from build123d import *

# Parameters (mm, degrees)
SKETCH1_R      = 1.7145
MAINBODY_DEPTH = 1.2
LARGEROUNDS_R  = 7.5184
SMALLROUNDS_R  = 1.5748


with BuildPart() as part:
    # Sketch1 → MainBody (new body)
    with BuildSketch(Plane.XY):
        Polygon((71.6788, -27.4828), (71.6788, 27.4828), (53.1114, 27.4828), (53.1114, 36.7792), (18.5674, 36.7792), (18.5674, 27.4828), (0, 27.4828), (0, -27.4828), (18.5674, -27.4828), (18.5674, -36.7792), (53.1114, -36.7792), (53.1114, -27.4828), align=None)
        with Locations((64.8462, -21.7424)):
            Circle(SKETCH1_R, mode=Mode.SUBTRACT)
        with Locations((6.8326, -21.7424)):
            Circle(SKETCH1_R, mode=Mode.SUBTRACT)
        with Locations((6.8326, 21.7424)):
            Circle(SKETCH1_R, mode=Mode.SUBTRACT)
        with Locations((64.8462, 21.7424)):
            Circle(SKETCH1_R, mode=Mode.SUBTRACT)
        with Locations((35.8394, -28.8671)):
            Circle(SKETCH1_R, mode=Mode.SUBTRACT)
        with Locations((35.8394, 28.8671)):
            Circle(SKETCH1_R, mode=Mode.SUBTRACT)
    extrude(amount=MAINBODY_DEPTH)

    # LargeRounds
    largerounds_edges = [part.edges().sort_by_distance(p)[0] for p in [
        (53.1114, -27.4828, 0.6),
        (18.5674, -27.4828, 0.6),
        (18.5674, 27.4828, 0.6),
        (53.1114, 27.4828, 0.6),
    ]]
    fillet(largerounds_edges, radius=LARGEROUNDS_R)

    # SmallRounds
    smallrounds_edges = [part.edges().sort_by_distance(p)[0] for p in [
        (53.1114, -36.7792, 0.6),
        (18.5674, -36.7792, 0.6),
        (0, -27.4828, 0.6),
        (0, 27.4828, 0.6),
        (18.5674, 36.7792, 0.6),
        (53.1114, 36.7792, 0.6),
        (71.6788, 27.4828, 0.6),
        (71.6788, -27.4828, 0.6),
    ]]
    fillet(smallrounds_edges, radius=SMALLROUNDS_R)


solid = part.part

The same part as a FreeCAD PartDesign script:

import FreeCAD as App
import Part
import Sketcher
Q = App.Units.Quantity


def edges_at(feature, points):
    """Names of the edges that pass closest to the given points."""
    edges = feature.Shape.Edges
    near = lambda p: min(range(len(edges)), key=lambda i: edges[i].distToShape(Part.Vertex(*p))[0])
    return sorted({f"Edge{near(p) + 1}" for p in points})


def add_polygon(sketch, points):
    """Adds a closed chain of lines whose ends are joined by coincident constraints."""
    first, n = sketch.GeometryCount, len(points)
    for a, b in zip(points, points[1:] + points[:1]):
        sketch.addGeometry(Part.LineSegment(App.Vector(*a, 0), App.Vector(*b, 0)), False)
    for i in range(n):
        sketch.addConstraint(Sketcher.Constraint("Coincident", first + i, 2, first + (i + 1) % n, 1))

doc = App.newDocument("Part")
params = doc.addObject("Spreadsheet::Sheet", "Params")
for row, (alias, value) in enumerate([
    ("sketch1_diameter", "0.135 in"),
    ("sketch1_width", "1.36 in"),
    ("sketch1_width2", "0.731 in"),
    ("sketch1_height", "2.164 in"),
    ("sketch1_height2", "0.366 in"),
    ("pad1_length", "1.2 mm"),
    ("fillet_radius", "0.296 in"),
    ("fillet2_radius", "0.062 in"),
], start=1):
    params.set(f"A{row}", alias)
    params.set(f"B{row}", "=" + value)
    params.setAlias(f"B{row}", alias)

body = doc.addObject("PartDesign::Body", "Body")

sketch1 = body.newObject("Sketcher::SketchObject", "Sketch")
sketch1.AttachmentSupport = (doc.getObject("XY_Plane"), [""])
sketch1.MapMode = "FlatFace"
add_polygon(sketch1, [(71.7, -27.5), (71.7, 27.5), (53.1, 27.5), (53.1, 36.8), (18.6, 36.8), (18.6, 27.5), (0, 27.5), (0, -27.5), (18.6, -27.5), (18.6, -36.8), (53.1, -36.8), (53.1, -27.5)])
sketch1.addGeometry(Part.Circle(App.Vector(6.8, -21.7, 0), App.Vector(0, 0, 1), 1.7), False)
sketch1.addGeometry(Part.Circle(App.Vector(35.8, -28.9, 0), App.Vector(0, 0, 1), 1.7), False)
sketch1.addGeometry(Part.Circle(App.Vector(64.8, -21.7, 0), App.Vector(0, 0, 1), 1.7), False)
sketch1.addGeometry(Part.Circle(App.Vector(6.8, 21.7, 0), App.Vector(0, 0, 1), 1.7), False)
sketch1.addGeometry(Part.Circle(App.Vector(35.8, 28.9, 0), App.Vector(0, 0, 1), 1.7), False)
sketch1.addGeometry(Part.Circle(App.Vector(64.8, 21.7, 0), App.Vector(0, 0, 1), 1.7), False)
sketch1.addConstraint([
    Sketcher.Constraint("Vertical", 0),
    Sketcher.Constraint("Horizontal", 1),
    Sketcher.Constraint("Vertical", 2),
    Sketcher.Constraint("Horizontal", 3),
    Sketcher.Constraint("Vertical", 4),
    Sketcher.Constraint("Horizontal", 5),
    Sketcher.Constraint("Vertical", 6),
    Sketcher.Constraint("Horizontal", 7),
    Sketcher.Constraint("Vertical", 8),
    Sketcher.Constraint("Horizontal", 9),
    Sketcher.Constraint("Vertical", 10),
    Sketcher.Constraint("Horizontal", 11),
    Sketcher.Constraint("Equal", 12, 13),
    Sketcher.Constraint("Equal", 13, 14),
    Sketcher.Constraint("Equal", 14, 15),
    Sketcher.Constraint("Equal", 15, 16),
    Sketcher.Constraint("Equal", 16, 17),
    Sketcher.Constraint("Symmetric", 5, 2, 6, 2, -1, 1),
    Sketcher.Constraint("Symmetric", 12, 3, 15, 3, -1),
    Sketcher.Constraint("Symmetric", 13, 3, 16, 3, -1),
    Sketcher.Constraint("Symmetric", 14, 3, 17, 3, -1),
    Sketcher.Constraint("Symmetric", 3, 2, 8, 2, -1),
    Sketcher.Constraint("Symmetric", 1, 2, 10, 2, -1),
    Sketcher.Constraint("Horizontal", 12, 3, 14, 3),
    Sketcher.Constraint("Horizontal", 1, 2, 4, 2),
    Sketcher.Constraint("Equal", 1, 5),
    Sketcher.Constraint("Diameter", 12, Q("0.135 in")),
    Sketcher.Constraint("DistanceX", 3, 2, 3, 1, Q("1.36 in")),
    Sketcher.Constraint("DistanceX", 1, 2, 1, 1, Q("0.731 in")),
    Sketcher.Constraint("DistanceY", 0, 1, 0, 2, Q("2.164 in")),
    Sketcher.Constraint("DistanceY", 2, 1, 2, 2, Q("0.366 in")),
    Sketcher.Constraint("DistanceX", 16, 3, 1, 2, Q("0.68 in")),
    Sketcher.Constraint("DistanceX", -1, 1, 12, 3, Q("0.269 in")),
    Sketcher.Constraint("DistanceY", 12, 3, -1, 1, Q("0.856 in")),
    Sketcher.Constraint("DistanceX", -1, 1, 14, 3, Q("2.553 in")),
    Sketcher.Constraint("DistanceY", 13, 3, 16, 3, Q("2.273 in")),
])
sketch1.setExpression("Constraints[38]", "Params.sketch1_diameter")
sketch1.setExpression("Constraints[39]", "Params.sketch1_width")
sketch1.setExpression("Constraints[40]", "Params.sketch1_width2")
sketch1.setExpression("Constraints[41]", "Params.sketch1_height")
sketch1.setExpression("Constraints[42]", "Params.sketch1_height2")
pad1 = body.newObject("PartDesign::Pad", "Pad")
pad1.Profile = sketch1
pad1.setExpression("Length", "Params.pad1_length")
doc.recompute()

fillet = body.newObject("PartDesign::Fillet", "Fillet")
fillet.Base = (pad1, edges_at(pad1, [
    (53.111, -27.483, 0.6),
    (18.567, -27.483, 0.6),
    (18.567, 27.483, 0.6),
    (53.111, 27.483, 0.6),
]))
fillet.setExpression("Radius", "Params.fillet_radius")
doc.recompute()

fillet2 = body.newObject("PartDesign::Fillet", "Fillet001")
fillet2.Base = (fillet, edges_at(fillet, [
    (53.111, -36.779, 0.6),
    (18.567, -36.779, 0.6),
    (0, -27.483, 0.6),
    (0, 27.483, 0.6),
    (18.567, 36.779, 0.6),
    (53.111, 36.779, 0.6),
    (71.679, 27.483, 0.6),
    (71.679, -27.483, 0.6),
]))
fillet2.setExpression("Radius", "Params.fillet2_radius")

doc.recompute()
